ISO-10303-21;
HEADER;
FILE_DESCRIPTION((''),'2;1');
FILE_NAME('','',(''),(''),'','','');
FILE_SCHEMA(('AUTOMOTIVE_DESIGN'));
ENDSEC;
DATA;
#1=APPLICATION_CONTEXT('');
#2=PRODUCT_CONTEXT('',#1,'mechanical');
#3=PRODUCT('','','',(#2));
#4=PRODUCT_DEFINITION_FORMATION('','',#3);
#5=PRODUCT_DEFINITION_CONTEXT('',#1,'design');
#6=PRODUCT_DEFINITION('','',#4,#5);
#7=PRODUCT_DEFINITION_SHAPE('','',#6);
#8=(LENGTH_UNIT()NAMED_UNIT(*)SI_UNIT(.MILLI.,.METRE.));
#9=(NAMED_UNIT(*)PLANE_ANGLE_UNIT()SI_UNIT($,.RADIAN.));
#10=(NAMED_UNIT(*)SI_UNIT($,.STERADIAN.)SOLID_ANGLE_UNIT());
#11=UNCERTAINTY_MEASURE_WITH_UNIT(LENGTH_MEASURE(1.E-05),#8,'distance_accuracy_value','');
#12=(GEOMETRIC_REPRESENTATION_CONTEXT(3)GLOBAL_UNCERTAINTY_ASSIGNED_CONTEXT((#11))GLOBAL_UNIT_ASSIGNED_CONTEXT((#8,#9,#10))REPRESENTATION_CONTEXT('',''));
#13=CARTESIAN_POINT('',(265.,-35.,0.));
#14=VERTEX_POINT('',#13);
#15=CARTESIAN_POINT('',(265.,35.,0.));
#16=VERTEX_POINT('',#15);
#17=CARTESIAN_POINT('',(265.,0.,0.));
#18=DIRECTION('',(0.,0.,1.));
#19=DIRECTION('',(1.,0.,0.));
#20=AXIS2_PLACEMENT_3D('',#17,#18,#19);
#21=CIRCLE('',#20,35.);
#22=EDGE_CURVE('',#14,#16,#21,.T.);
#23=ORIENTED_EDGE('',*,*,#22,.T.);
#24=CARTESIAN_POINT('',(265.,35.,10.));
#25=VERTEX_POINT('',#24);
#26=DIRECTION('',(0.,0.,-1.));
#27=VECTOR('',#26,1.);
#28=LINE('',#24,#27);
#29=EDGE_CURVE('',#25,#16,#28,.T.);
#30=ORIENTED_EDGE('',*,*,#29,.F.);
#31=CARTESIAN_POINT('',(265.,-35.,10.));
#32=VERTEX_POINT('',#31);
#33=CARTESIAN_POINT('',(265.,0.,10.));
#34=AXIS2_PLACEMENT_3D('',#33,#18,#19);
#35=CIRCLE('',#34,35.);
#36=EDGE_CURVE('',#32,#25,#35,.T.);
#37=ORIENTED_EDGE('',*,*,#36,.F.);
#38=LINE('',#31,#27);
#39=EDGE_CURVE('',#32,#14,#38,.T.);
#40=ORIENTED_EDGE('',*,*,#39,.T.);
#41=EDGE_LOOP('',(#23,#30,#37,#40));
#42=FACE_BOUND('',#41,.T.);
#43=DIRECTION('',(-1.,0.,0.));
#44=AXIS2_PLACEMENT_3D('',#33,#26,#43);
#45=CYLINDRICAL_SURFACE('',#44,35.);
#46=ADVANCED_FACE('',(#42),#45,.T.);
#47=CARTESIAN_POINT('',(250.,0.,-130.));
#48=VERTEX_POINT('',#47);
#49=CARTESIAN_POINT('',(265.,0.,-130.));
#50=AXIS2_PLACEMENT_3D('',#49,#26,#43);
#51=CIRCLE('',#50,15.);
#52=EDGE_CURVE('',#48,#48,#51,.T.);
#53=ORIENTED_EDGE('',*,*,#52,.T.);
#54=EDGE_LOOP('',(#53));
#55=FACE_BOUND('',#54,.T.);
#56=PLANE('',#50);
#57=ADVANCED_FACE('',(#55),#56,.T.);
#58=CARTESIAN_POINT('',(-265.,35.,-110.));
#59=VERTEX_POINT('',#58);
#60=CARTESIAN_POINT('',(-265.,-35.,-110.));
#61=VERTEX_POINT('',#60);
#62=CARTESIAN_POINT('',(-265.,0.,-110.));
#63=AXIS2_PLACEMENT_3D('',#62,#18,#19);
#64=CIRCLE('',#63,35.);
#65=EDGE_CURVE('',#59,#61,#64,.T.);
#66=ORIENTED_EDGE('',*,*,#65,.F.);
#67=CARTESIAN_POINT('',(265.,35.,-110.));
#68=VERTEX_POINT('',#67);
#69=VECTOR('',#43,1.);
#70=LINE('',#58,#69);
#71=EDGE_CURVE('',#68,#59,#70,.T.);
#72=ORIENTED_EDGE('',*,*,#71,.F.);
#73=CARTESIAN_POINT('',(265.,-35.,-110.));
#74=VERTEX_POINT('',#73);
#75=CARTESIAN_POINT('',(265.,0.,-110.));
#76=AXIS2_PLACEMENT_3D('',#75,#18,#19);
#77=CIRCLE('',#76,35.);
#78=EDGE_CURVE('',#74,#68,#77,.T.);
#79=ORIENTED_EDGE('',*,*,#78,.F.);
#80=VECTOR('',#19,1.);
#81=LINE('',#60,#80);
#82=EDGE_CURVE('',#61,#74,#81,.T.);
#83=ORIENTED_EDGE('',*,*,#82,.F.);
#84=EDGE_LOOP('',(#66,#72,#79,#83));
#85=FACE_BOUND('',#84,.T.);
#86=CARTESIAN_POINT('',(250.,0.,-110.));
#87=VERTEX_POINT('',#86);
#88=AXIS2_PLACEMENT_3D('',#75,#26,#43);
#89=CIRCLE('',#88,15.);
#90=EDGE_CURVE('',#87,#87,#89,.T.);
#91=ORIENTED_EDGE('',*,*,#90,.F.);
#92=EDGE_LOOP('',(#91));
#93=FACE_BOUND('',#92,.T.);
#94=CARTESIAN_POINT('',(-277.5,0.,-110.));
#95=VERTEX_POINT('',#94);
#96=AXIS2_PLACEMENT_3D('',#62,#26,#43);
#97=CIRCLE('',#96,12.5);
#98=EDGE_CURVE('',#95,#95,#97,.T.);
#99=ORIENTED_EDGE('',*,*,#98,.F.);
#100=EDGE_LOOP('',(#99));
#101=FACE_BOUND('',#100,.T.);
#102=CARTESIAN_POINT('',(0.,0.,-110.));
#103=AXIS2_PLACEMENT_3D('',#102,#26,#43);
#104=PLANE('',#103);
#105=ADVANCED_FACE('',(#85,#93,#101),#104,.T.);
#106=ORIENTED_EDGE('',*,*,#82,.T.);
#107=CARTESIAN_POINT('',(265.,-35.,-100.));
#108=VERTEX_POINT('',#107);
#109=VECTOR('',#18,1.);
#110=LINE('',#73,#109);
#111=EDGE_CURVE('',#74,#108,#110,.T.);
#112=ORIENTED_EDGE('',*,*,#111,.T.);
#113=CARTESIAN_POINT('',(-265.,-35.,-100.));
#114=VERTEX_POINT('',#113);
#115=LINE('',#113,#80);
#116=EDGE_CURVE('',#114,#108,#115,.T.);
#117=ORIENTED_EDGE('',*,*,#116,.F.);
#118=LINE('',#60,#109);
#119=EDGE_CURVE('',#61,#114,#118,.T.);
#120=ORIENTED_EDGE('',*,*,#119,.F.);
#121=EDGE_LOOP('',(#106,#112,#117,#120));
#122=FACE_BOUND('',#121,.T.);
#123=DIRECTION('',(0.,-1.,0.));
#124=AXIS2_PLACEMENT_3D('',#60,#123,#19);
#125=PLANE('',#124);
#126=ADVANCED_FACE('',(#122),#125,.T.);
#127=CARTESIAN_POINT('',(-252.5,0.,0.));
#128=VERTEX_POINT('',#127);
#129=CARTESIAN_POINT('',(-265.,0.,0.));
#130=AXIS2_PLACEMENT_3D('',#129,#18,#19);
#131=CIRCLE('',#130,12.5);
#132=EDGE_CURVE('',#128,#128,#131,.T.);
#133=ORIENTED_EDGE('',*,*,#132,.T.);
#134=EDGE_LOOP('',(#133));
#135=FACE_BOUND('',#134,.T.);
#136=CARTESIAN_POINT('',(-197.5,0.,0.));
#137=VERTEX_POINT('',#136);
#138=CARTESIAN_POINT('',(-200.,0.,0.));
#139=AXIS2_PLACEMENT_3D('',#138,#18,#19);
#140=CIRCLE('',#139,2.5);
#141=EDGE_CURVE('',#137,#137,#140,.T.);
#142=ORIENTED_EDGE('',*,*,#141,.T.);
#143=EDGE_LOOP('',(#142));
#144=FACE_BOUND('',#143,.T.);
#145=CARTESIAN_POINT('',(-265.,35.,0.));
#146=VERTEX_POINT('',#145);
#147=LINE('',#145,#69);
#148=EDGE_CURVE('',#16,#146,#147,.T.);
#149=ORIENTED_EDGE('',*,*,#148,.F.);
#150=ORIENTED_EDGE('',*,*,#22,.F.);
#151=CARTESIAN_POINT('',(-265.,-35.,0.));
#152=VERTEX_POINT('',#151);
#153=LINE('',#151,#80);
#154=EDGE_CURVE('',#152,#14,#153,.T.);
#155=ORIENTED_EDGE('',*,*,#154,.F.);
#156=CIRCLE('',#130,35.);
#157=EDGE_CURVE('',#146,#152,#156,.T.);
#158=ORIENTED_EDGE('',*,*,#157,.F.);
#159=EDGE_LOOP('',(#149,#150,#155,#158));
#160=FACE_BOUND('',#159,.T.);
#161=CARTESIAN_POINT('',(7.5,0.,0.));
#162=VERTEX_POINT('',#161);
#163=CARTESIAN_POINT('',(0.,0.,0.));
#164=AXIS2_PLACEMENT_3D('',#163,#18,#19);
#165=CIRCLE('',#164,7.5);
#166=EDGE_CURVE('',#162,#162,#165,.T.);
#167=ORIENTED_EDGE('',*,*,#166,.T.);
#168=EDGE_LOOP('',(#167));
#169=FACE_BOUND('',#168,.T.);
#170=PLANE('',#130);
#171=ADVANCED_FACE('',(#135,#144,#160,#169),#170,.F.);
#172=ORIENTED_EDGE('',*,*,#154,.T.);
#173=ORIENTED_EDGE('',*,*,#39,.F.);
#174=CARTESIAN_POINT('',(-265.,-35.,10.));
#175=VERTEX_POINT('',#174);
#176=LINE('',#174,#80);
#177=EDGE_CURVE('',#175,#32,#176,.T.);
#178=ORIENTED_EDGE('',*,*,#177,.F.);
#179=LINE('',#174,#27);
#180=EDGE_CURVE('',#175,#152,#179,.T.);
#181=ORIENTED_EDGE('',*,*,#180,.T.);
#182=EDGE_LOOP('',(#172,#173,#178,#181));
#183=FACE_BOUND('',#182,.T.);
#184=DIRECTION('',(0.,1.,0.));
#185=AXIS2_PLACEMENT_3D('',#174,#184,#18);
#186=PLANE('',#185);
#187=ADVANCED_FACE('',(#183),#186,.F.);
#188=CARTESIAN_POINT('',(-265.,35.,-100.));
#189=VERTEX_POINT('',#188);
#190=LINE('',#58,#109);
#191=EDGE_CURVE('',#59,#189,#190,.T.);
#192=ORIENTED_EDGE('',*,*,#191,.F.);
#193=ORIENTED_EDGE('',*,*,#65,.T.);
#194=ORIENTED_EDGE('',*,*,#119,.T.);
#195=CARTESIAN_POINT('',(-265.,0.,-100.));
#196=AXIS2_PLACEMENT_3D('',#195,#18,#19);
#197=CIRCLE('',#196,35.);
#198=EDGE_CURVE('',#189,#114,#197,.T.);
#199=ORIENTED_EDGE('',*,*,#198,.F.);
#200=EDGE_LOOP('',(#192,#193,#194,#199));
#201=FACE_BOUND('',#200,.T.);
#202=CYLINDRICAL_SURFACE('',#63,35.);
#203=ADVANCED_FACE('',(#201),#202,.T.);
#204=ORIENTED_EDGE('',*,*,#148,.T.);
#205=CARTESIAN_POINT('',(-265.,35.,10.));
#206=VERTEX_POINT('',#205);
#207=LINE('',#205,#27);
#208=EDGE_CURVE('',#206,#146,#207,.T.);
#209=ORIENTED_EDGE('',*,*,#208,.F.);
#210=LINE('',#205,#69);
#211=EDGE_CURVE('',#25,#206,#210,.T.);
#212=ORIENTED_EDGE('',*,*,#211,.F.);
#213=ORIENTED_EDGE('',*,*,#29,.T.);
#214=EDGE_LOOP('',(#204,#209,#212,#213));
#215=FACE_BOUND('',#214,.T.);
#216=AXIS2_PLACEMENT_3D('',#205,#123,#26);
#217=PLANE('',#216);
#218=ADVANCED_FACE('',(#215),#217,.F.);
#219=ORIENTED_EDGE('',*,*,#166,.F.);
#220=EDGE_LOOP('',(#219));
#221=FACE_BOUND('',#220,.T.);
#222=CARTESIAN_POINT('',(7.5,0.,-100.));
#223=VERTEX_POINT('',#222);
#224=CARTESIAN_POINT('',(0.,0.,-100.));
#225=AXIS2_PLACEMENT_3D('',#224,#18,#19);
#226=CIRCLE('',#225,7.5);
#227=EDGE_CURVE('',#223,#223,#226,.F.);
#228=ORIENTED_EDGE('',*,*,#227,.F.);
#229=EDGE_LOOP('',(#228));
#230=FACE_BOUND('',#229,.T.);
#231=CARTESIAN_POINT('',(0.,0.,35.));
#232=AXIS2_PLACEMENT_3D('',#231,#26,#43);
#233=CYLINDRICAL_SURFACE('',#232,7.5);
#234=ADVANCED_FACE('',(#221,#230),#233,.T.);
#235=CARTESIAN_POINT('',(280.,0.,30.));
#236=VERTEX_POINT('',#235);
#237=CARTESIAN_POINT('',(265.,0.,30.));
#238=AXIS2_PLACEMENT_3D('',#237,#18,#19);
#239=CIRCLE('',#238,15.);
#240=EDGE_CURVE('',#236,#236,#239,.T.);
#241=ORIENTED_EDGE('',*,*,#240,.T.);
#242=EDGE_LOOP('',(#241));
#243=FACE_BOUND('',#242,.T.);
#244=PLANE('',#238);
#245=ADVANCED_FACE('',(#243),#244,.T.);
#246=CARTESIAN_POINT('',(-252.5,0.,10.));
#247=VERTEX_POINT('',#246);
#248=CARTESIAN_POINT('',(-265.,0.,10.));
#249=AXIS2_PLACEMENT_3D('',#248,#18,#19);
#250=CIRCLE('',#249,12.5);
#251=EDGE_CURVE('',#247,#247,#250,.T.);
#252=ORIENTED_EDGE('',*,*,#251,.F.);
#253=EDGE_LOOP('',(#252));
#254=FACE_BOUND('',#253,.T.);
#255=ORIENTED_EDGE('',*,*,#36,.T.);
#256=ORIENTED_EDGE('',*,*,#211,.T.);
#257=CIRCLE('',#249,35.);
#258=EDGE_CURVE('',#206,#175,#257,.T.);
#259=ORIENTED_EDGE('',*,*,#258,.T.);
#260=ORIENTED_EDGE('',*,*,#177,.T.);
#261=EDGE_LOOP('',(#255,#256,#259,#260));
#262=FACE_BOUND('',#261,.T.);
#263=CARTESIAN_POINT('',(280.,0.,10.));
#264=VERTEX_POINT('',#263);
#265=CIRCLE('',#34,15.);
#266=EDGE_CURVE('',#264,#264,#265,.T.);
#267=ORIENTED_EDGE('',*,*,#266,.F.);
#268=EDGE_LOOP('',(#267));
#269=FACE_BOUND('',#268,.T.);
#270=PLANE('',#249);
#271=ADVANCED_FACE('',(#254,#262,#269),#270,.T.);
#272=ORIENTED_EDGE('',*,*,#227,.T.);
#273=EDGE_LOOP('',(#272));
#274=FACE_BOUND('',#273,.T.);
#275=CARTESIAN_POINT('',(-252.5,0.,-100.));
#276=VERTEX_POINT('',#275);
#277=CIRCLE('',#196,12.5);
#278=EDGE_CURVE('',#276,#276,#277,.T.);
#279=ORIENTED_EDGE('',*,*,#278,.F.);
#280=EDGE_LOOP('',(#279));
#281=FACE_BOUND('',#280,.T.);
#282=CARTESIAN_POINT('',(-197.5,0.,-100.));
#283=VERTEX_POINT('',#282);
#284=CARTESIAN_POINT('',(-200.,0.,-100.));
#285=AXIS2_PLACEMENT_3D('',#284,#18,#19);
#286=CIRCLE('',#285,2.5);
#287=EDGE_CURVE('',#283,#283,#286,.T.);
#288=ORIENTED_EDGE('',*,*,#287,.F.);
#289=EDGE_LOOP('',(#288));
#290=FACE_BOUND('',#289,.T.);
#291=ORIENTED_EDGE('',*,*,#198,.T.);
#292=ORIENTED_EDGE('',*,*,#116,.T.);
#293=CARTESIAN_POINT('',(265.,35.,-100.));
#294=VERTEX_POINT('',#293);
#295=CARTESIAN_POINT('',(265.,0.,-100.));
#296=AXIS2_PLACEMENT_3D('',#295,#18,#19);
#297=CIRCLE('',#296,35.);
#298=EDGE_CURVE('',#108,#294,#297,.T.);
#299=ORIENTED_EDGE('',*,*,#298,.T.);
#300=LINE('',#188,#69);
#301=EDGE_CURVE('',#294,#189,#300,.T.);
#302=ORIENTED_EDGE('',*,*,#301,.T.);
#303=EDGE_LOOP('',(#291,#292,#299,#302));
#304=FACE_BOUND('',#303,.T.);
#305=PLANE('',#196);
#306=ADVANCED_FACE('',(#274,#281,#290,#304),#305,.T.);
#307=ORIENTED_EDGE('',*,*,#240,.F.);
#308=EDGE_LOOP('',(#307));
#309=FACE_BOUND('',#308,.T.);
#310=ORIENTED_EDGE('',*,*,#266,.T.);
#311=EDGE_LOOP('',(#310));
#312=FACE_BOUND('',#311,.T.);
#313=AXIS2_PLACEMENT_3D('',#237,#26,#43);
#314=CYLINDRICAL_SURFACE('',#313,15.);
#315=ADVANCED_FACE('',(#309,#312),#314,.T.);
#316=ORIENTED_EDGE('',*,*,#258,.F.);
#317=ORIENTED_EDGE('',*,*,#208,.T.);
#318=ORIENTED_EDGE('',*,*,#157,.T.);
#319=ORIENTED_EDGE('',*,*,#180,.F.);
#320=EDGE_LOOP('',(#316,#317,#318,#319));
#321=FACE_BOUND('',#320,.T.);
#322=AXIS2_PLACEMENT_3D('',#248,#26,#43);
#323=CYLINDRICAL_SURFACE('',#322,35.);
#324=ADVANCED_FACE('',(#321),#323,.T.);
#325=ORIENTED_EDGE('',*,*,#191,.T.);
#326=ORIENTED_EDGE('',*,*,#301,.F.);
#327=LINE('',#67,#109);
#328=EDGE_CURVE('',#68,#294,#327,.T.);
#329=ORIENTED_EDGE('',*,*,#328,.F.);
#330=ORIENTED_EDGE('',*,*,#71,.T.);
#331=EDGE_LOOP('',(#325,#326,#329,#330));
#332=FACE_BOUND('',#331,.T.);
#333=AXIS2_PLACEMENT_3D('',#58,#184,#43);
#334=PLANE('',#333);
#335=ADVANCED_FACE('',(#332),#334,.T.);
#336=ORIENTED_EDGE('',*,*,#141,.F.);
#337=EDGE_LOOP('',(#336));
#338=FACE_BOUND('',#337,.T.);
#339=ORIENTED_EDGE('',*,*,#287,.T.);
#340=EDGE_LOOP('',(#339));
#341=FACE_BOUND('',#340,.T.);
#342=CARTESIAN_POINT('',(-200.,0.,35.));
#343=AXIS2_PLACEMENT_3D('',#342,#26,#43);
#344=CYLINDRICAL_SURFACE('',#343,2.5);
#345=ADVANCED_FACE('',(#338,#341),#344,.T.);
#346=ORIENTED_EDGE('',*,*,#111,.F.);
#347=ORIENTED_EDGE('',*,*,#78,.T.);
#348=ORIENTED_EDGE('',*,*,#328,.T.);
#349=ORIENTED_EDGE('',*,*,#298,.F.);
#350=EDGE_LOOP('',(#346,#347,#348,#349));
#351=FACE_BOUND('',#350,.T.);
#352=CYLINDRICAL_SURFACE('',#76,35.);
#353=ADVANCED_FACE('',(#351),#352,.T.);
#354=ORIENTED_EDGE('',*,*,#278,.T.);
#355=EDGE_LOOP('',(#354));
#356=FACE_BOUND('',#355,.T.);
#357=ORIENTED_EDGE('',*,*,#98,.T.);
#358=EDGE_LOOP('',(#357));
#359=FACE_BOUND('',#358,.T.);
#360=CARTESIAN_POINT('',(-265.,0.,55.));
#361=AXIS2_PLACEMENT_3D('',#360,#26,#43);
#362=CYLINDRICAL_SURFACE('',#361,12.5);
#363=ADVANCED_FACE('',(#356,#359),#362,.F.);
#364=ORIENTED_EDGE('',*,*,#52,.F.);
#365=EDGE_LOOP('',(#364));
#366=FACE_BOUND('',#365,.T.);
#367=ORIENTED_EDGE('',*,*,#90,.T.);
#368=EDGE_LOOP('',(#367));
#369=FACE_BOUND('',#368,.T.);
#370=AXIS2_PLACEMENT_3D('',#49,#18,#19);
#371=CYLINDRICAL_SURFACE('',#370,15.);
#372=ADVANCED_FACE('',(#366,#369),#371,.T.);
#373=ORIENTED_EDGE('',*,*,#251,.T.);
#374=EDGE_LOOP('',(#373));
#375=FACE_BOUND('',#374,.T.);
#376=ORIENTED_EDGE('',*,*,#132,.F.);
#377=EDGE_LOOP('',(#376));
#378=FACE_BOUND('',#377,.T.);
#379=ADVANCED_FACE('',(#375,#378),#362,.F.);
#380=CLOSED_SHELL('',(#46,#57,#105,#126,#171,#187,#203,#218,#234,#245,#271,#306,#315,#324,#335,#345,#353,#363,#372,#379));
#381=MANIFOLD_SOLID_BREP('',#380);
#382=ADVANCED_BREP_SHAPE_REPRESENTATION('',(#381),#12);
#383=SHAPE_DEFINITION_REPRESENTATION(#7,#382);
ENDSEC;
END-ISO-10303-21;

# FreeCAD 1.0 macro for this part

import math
import FreeCAD as App
import Part
import Sketcher
Q = App.Units.Quantity

doc = App.newDocument("Part")
body = doc.addObject("PartDesign::Body", "Body")

sketch1 = body.newObject("Sketcher::SketchObject", "Sketch")
sketch1.AttachmentSupport = (doc.getObject("XY_Plane"), [""])
sketch1.MapMode = "FlatFace"
sketch1.addGeometry([
    Part.LineSegment(App.Vector(265, 35, 0), App.Vector(-265, 35, 0)),
    Part.ArcOfCircle(Part.Circle(App.Vector(-265, 0, 0), App.Vector(0, 0, 1), 35), math.radians(90), math.radians(270)),
    Part.LineSegment(App.Vector(-265, -35, 0), App.Vector(265, -35, 0)),
    Part.ArcOfCircle(Part.Circle(App.Vector(265, 0, 0), App.Vector(0, 0, 1), 35), math.radians(-90), math.radians(90)),
], False)
sketch1.addConstraint([
    Sketcher.Constraint("Tangent", 0, 2, 1, 1),
    Sketcher.Constraint("Tangent", 1, 2, 2, 1),
    Sketcher.Constraint("Tangent", 2, 2, 3, 1),
    Sketcher.Constraint("Tangent", 3, 2, 0, 1),
    Sketcher.Constraint("Horizontal", 0),
    Sketcher.Constraint("Horizontal", 2),
    Sketcher.Constraint("Symmetric", 1, 3, 3, 3, -1, 1),
    Sketcher.Constraint("Radius", 1, Q("35 mm")),
    Sketcher.Constraint("DistanceX", 0, 2, 0, 1, Q("530 mm")),
])
pad1 = body.newObject("PartDesign::Pad", "Pad")
pad1.Profile = sketch1
pad1.Length = 10
body2 = doc.addObject("PartDesign::Body", "Body001")

sketch2 = body2.newObject("Sketcher::SketchObject", "Sketch001")
sketch2.AttachmentSupport = (doc.getObject("XY_Plane001"), [""])
sketch2.MapMode = "FlatFace"
sketch2.AttachmentOffset = App.Placement(App.Vector(0, 0, -100), App.Rotation())
sketch2.addGeometry([
    Part.LineSegment(App.Vector(265, 35, 0), App.Vector(-265, 35, 0)),
    Part.ArcOfCircle(Part.Circle(App.Vector(-265, 0, 0), App.Vector(0, 0, 1), 35), math.radians(90), math.radians(270)),
    Part.LineSegment(App.Vector(-265, -35, 0), App.Vector(265, -35, 0)),
    Part.ArcOfCircle(Part.Circle(App.Vector(265, 0, 0), App.Vector(0, 0, 1), 35), math.radians(-90), math.radians(90)),
], False)
sketch2.addConstraint([
    Sketcher.Constraint("Tangent", 0, 2, 1, 1),
    Sketcher.Constraint("Tangent", 1, 2, 2, 1),
    Sketcher.Constraint("Tangent", 2, 2, 3, 1),
    Sketcher.Constraint("Tangent", 3, 2, 0, 1),
    Sketcher.Constraint("Horizontal", 0),
    Sketcher.Constraint("Horizontal", 2),
    Sketcher.Constraint("Symmetric", 1, 3, 3, 3, -1, 1),
    Sketcher.Constraint("Radius", 1, Q("35 mm")),
    Sketcher.Constraint("DistanceX", 0, 2, 0, 1, Q("530 mm")),
])
pad2 = body2.newObject("PartDesign::Pad", "Pad001")
pad2.Profile = sketch2
pad2.Length = 10
pad2.Reversed = True
body.AllowCompound = True
doc.recompute()

boolean = body.newObject("PartDesign::Boolean", "Boolean")
boolean.Type = "Fuse"
boolean.addObjects([body2])

sketch3 = body.newObject("Sketcher::SketchObject", "Sketch002")
sketch3.AttachmentSupport = (doc.getObject("XY_Plane"), [""])
sketch3.MapMode = "FlatFace"
sketch3.AttachmentOffset = App.Placement(App.Vector(0, 0, -110), App.Rotation())
sketch3.addGeometry(Part.Circle(App.Vector(0, 0, 0), App.Vector(0, 0, 1), 8), False)
sketch3.addConstraint([
    Sketcher.Constraint("Coincident", 0, 3, -1, 1),
    Sketcher.Constraint("Diameter", 0, Q("15 mm")),
])
pad3 = body.newObject("PartDesign::Pad", "Pad002")
pad3.Profile = sketch3
pad3.Length = 145

sketch4 = body.newObject("Sketcher::SketchObject", "Sketch003")
sketch4.AttachmentSupport = (doc.getObject("XY_Plane"), [""])
sketch4.MapMode = "FlatFace"
sketch4.AttachmentOffset = App.Placement(App.Vector(0, 0, -110), App.Rotation())
sketch4.addGeometry(Part.Circle(App.Vector(-200, 0, 0), App.Vector(0, 0, 1), 2.5), False)
sketch4.addConstraint([
    Sketcher.Constraint("PointOnObject", 0, 3, -1),
    Sketcher.Constraint("Diameter", 0, Q("5 mm")),
    Sketcher.Constraint("DistanceX", 0, 3, -1, 1, Q("200 mm")),
])
pad4 = body.newObject("PartDesign::Pad", "Pad003")
pad4.Profile = sketch4
pad4.Length = 145

sketch5 = body.newObject("Sketcher::SketchObject", "Sketch004")
sketch5.AttachmentSupport = (doc.getObject("XY_Plane"), [""])
sketch5.MapMode = "FlatFace"
sketch5.AttachmentOffset = App.Placement(App.Vector(0, 0, -110), App.Rotation())
sketch5.addGeometry(Part.Circle(App.Vector(-265, 0, 0), App.Vector(0, 0, 1), 12), False)
sketch5.addConstraint([
    Sketcher.Constraint("PointOnObject", 0, 3, -1),
    Sketcher.Constraint("Diameter", 0, Q("25 mm")),
    Sketcher.Constraint("DistanceX", 0, 3, -1, 1, Q("265 mm")),
])
pocket1 = body.newObject("PartDesign::Pocket", "Pocket")
pocket1.Profile = sketch5
pocket1.Length = 165
pocket1.Reversed = True

sketch6 = body.newObject("Sketcher::SketchObject", "Sketch005")
sketch6.AttachmentSupport = (doc.getObject("XY_Plane"), [""])
sketch6.MapMode = "FlatFace"
sketch6.AttachmentOffset = App.Placement(App.Vector(0, 0, 35), App.Rotation())
sketch6.addGeometry(Part.Circle(App.Vector(-200, 0, 0), App.Vector(0, 0, 1), 8), False)
sketch6.addConstraint([
    Sketcher.Constraint("PointOnObject", 0, 3, -1),
    Sketcher.Constraint("Diameter", 0, Q("15 mm")),
    Sketcher.Constraint("DistanceX", 0, 3, -1, 1, Q("200 mm")),
])
pocket2 = body.newObject("PartDesign::Pocket", "Pocket001")
pocket2.Profile = sketch6
pocket2.Length = 25

sketch7 = body.newObject("Sketcher::SketchObject", "Sketch006")
sketch7.AttachmentSupport = (doc.getObject("XY_Plane"), [""])
sketch7.MapMode = "FlatFace"
sketch7.AttachmentOffset = App.Placement(App.Vector(0, 0, 10), App.Rotation())
sketch7.addGeometry(Part.Circle(App.Vector(265, 0, 0), App.Vector(0, 0, 1), 15), False)
sketch7.addConstraint([
    Sketcher.Constraint("PointOnObject", 0, 3, -1),
    Sketcher.Constraint("Diameter", 0, Q("30 mm")),
    Sketcher.Constraint("DistanceX", -1, 1, 0, 3, Q("265 mm")),
])
pad5 = body.newObject("PartDesign::Pad", "Pad004")
pad5.Profile = sketch7
pad5.Length = 20

sketch8 = body.newObject("Sketcher::SketchObject", "Sketch007")
sketch8.AttachmentSupport = (doc.getObject("XY_Plane"), [""])
sketch8.MapMode = "FlatFace"
sketch8.AttachmentOffset = App.Placement(App.Vector(0, 0, -110), App.Rotation())
sketch8.addGeometry(Part.Circle(App.Vector(265, 0, 0), App.Vector(0, 0, 1), 15), False)
sketch8.addConstraint([
    Sketcher.Constraint("PointOnObject", 0, 3, -1),
    Sketcher.Constraint("Diameter", 0, Q("30 mm")),
    Sketcher.Constraint("DistanceX", -1, 1, 0, 3, Q("265 mm")),
])
pad6 = body.newObject("PartDesign::Pad", "Pad005")
pad6.Profile = sketch8
pad6.Length = 20
pad6.Reversed = True

sketch9 = body.newObject("Sketcher::SketchObject", "Sketch008")
sketch9.AttachmentSupport = (doc.getObject("XY_Plane"), [""])
sketch9.MapMode = "FlatFace"
sketch9.AttachmentOffset = App.Placement(App.Vector(0, 0, 35), App.Rotation())
sketch9.addGeometry(Part.Circle(App.Vector(0, 0, 0), App.Vector(0, 0, 1), 15), False)
sketch9.addConstraint([
    Sketcher.Constraint("Coincident", 0, 3, -1, 1),
    Sketcher.Constraint("Diameter", 0, Q("30 mm")),
])
pocket3 = body.newObject("PartDesign::Pocket", "Pocket002")
pocket3.Profile = sketch9
pocket3.Length = 25

doc.recompute()
